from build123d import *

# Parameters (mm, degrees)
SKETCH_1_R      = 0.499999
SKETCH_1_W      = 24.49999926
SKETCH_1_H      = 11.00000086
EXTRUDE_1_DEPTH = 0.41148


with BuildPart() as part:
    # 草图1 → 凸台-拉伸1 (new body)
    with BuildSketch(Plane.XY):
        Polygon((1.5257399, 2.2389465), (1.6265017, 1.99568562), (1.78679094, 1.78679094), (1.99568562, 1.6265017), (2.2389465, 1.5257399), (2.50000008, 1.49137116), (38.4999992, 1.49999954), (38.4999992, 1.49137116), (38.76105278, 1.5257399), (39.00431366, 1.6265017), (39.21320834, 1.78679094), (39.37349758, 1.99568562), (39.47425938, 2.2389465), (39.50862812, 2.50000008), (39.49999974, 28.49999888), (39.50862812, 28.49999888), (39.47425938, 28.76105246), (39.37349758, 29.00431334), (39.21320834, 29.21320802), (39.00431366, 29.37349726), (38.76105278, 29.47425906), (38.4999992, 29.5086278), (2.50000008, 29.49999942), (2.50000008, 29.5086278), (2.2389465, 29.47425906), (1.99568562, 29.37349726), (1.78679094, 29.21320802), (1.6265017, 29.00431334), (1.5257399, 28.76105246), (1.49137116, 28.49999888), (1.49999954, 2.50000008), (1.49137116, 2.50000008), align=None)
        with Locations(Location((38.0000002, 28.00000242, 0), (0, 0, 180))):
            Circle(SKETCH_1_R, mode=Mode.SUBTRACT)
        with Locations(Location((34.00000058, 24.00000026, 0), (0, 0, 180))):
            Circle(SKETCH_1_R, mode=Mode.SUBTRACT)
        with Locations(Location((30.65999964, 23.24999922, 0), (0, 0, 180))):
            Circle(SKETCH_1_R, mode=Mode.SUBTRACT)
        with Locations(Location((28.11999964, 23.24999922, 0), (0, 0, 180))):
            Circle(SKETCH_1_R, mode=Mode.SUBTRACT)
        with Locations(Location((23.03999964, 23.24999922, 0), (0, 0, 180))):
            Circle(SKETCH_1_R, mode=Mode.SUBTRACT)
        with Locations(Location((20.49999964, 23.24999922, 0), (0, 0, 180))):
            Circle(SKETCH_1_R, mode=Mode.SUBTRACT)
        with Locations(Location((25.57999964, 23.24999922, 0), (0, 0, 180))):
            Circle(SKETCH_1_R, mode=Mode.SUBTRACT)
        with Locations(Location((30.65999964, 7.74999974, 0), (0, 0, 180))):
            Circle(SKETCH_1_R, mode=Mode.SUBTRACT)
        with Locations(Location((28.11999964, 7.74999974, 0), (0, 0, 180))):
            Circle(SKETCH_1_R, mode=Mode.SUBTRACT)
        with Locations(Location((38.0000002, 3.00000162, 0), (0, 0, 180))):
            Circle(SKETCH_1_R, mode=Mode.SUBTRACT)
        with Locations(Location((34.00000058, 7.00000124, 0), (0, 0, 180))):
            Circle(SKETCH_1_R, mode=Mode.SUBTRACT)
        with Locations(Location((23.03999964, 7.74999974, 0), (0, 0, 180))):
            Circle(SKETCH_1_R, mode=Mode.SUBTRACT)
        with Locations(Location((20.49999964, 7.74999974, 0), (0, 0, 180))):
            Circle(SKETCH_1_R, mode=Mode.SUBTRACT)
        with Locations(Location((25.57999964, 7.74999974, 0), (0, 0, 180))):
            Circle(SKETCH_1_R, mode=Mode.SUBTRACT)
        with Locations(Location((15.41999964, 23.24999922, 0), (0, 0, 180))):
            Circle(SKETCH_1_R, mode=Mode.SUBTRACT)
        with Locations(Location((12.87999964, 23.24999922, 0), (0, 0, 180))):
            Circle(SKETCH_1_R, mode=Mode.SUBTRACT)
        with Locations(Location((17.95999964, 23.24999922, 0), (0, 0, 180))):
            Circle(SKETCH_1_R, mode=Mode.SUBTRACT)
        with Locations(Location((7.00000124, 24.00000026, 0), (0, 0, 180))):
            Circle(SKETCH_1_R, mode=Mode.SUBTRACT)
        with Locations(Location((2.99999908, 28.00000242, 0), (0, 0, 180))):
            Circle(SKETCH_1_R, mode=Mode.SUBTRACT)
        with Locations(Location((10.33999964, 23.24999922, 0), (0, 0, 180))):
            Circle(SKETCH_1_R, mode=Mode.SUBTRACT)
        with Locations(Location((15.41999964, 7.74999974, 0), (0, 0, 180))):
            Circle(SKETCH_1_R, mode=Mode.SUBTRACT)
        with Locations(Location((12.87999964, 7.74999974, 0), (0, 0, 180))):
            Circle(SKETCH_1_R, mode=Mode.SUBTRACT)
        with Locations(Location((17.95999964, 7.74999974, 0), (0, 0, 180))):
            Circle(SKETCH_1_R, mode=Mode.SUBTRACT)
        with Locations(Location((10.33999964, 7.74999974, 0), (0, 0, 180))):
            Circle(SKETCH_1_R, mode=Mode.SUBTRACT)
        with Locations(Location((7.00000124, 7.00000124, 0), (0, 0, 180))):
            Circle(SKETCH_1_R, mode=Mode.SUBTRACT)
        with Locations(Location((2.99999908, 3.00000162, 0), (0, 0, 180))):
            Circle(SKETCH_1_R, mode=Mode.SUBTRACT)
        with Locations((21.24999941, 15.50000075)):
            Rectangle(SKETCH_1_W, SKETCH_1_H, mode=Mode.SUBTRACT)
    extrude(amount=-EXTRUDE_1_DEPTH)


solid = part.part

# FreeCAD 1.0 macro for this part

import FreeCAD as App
import Part
import Sketcher

V = App.Vector
Q = App.Units.Quantity

doc = App.newDocument("Part")
body = doc.addObject("PartDesign::Body", "Body")

# Sketch on XY plane
sketch1 = body.newObject("Sketcher::SketchObject", "Sketch")
sketch1.AttachmentSupport = (doc.getObject("XY_Plane"), [""])
sketch1.MapMode = "FlatFace"
sketch1.addGeometry(Part.LineSegment(V(1.52574, 2.238946, 0), V(1.626502, 1.995686, 0)), False)
sketch1.addGeometry(Part.LineSegment(V(1.626502, 1.995686, 0), V(1.786791, 1.786791, 0)), False)
sketch1.addGeometry(Part.LineSegment(V(1.786791, 1.786791, 0), V(1.995686, 1.626502, 0)), False)
sketch1.addGeometry(Part.LineSegment(V(1.995686, 1.626502, 0), V(2.238946, 1.52574, 0)), False)
sketch1.addGeometry(Part.LineSegment(V(2.238946, 1.52574, 0), V(2.5, 1.491371, 0)), False)
sketch1.addGeometry(Part.LineSegment(V(2.5, 1.491371, 0), V(38.499999, 1.5, 0)), False)
sketch1.addGeometry(Part.LineSegment(V(38.499999, 1.5, 0), V(38.499999, 1.491371, 0)), False)
sketch1.addGeometry(Part.LineSegment(V(38.499999, 1.491371, 0), V(38.761053, 1.52574, 0)), False)
sketch1.addGeometry(Part.LineSegment(V(38.761053, 1.52574, 0), V(39.004314, 1.626502, 0)), False)
sketch1.addGeometry(Part.LineSegment(V(39.004314, 1.626502, 0), V(39.213208, 1.786791, 0)), False)
sketch1.addGeometry(Part.LineSegment(V(39.213208, 1.786791, 0), V(39.373498, 1.995686, 0)), False)
sketch1.addGeometry(Part.LineSegment(V(39.373498, 1.995686, 0), V(39.474259, 2.238946, 0)), False)
sketch1.addGeometry(Part.LineSegment(V(39.474259, 2.238946, 0), V(39.508628, 2.5, 0)), False)
sketch1.addGeometry(Part.LineSegment(V(39.508628, 2.5, 0), V(39.5, 28.499999, 0)), False)
sketch1.addGeometry(Part.LineSegment(V(39.5, 28.499999, 0), V(39.508628, 28.499999, 0)), False)
sketch1.addGeometry(Part.LineSegment(V(39.508628, 28.499999, 0), V(39.474259, 28.761052, 0)), False)
sketch1.addGeometry(Part.LineSegment(V(39.474259, 28.761052, 0), V(39.373498, 29.004313, 0)), False)
sketch1.addGeometry(Part.LineSegment(V(39.373498, 29.004313, 0), V(39.213208, 29.213208, 0)), False)
sketch1.addGeometry(Part.LineSegment(V(39.213208, 29.213208, 0), V(39.004314, 29.373497, 0)), False)
sketch1.addGeometry(Part.LineSegment(V(39.004314, 29.373497, 0), V(38.761053, 29.474259, 0)), False)
sketch1.addGeometry(Part.LineSegment(V(38.761053, 29.474259, 0), V(38.499999, 29.508628, 0)), False)
sketch1.addGeometry(Part.LineSegment(V(38.499999, 29.508628, 0), V(2.5, 29.499999, 0)), False)
sketch1.addGeometry(Part.LineSegment(V(2.5, 29.499999, 0), V(2.5, 29.508628, 0)), False)
sketch1.addGeometry(Part.LineSegment(V(2.5, 29.508628, 0), V(2.238946, 29.474259, 0)), False)
sketch1.addGeometry(Part.LineSegment(V(2.238946, 29.474259, 0), V(1.995686, 29.373497, 0)), False)
sketch1.addGeometry(Part.LineSegment(V(1.995686, 29.373497, 0), V(1.786791, 29.213208, 0)), False)
sketch1.addGeometry(Part.LineSegment(V(1.786791, 29.213208, 0), V(1.626502, 29.004313, 0)), False)
sketch1.addGeometry(Part.LineSegment(V(1.626502, 29.004313, 0), V(1.52574, 28.761052, 0)), False)
sketch1.addGeometry(Part.LineSegment(V(1.52574, 28.761052, 0), V(1.491371, 28.499999, 0)), False)
sketch1.addGeometry(Part.LineSegment(V(1.491371, 28.499999, 0), V(1.5, 2.5, 0)), False)
sketch1.addGeometry(Part.LineSegment(V(1.5, 2.5, 0), V(1.491371, 2.5, 0)), False)
sketch1.addGeometry(Part.LineSegment(V(1.491371, 2.5, 0), V(1.52574, 2.238946, 0)), False)
sketch1.addGeometry(Part.Circle(V(2.999999, 3.000002, 0), V(0, 0, 1), 0.499999), False)
sketch1.addGeometry(Part.Circle(V(7.000001, 7.000001, 0), V(0, 0, 1), 0.499999), False)
sketch1.addGeometry(Part.Circle(V(10.34, 7.75, 0), V(0, 0, 1), 0.499999), False)
sketch1.addGeometry(Part.Circle(V(12.88, 7.75, 0), V(0, 0, 1), 0.499999), False)
sketch1.addGeometry(Part.Circle(V(15.42, 7.75, 0), V(0, 0, 1), 0.499999), False)
sketch1.addGeometry(Part.Circle(V(17.96, 7.75, 0), V(0, 0, 1), 0.499999), False)
sketch1.addGeometry(Part.Circle(V(20.5, 7.75, 0), V(0, 0, 1), 0.499999), False)
sketch1.addGeometry(Part.Circle(V(23.04, 7.75, 0), V(0, 0, 1), 0.499999), False)
sketch1.addGeometry(Part.Circle(V(25.58, 7.75, 0), V(0, 0, 1), 0.499999), False)
sketch1.addGeometry(Part.Circle(V(28.12, 7.75, 0), V(0, 0, 1), 0.499999), False)
sketch1.addGeometry(Part.Circle(V(38, 3.000002, 0), V(0, 0, 1), 0.499999), False)
sketch1.addGeometry(Part.Circle(V(30.66, 7.75, 0), V(0, 0, 1), 0.499999), False)
sketch1.addGeometry(Part.Circle(V(34.000001, 7.000001, 0), V(0, 0, 1), 0.499999), False)
sketch1.addGeometry(Part.LineSegment(V(33.499999, 10, 0), V(9, 10, 0)), False)
sketch1.addGeometry(Part.LineSegment(V(9, 10, 0), V(9, 21.000001, 0)), False)
sketch1.addGeometry(Part.LineSegment(V(9, 21.000001, 0), V(33.499999, 21.000001, 0)), False)
sketch1.addGeometry(Part.LineSegment(V(33.499999, 21.000001, 0), V(33.499999, 10, 0)), False)
sketch1.addGeometry(Part.Circle(V(10.34, 23.249999, 0), V(0, 0, 1), 0.499999), False)
sketch1.addGeometry(Part.Circle(V(7.000001, 24, 0), V(0, 0, 1), 0.499999), False)
sketch1.addGeometry(Part.Circle(V(2.999999, 28.000002, 0), V(0, 0, 1), 0.499999), False)
sketch1.addGeometry(Part.Circle(V(12.88, 23.249999, 0), V(0, 0, 1), 0.499999), False)
sketch1.addGeometry(Part.Circle(V(15.42, 23.249999, 0), V(0, 0, 1), 0.499999), False)
sketch1.addGeometry(Part.Circle(V(17.96, 23.249999, 0), V(0, 0, 1), 0.499999), False)
sketch1.addGeometry(Part.Circle(V(20.5, 23.249999, 0), V(0, 0, 1), 0.499999), False)
sketch1.addGeometry(Part.Circle(V(23.04, 23.249999, 0), V(0, 0, 1), 0.499999), False)
sketch1.addGeometry(Part.Circle(V(25.58, 23.249999, 0), V(0, 0, 1), 0.499999), False)
sketch1.addGeometry(Part.Circle(V(28.12, 23.249999, 0), V(0, 0, 1), 0.499999), False)
sketch1.addGeometry(Part.Circle(V(30.66, 23.249999, 0), V(0, 0, 1), 0.499999), False)
sketch1.addGeometry(Part.Circle(V(34.000001, 24, 0), V(0, 0, 1), 0.499999), False)
sketch1.addGeometry(Part.Circle(V(38, 28.000002, 0), V(0, 0, 1), 0.499999), False)
sketch1.addConstraint(Sketcher.Constraint("Coincident", 0, 2, 1, 1))
sketch1.addConstraint(Sketcher.Constraint("Coincident", 1, 2, 2, 1))
sketch1.addConstraint(Sketcher.Constraint("Coincident", 2, 2, 3, 1))
sketch1.addConstraint(Sketcher.Constraint("Coincident", 3, 2, 4, 1))
sketch1.addConstraint(Sketcher.Constraint("Coincident", 4, 2, 5, 1))
sketch1.addConstraint(Sketcher.Constraint("Coincident", 5, 2, 6, 1))
sketch1.addConstraint(Sketcher.Constraint("Coincident", 6, 2, 7, 1))
sketch1.addConstraint(Sketcher.Constraint("Coincident", 7, 2, 8, 1))
sketch1.addConstraint(Sketcher.Constraint("Coincident", 8, 2, 9, 1))
sketch1.addConstraint(Sketcher.Constraint("Coincident", 9, 2, 10, 1))
sketch1.addConstraint(Sketcher.Constraint("Coincident", 10, 2, 11, 1))
sketch1.addConstraint(Sketcher.Constraint("Coincident", 11, 2, 12, 1))
sketch1.addConstraint(Sketcher.Constraint("Coincident", 12, 2, 13, 1))
sketch1.addConstraint(Sketcher.Constraint("Coincident", 13, 2, 14, 1))
sketch1.addConstraint(Sketcher.Constraint("Coincident", 14, 2, 15, 1))
sketch1.addConstraint(Sketcher.Constraint("Coincident", 15, 2, 16, 1))
sketch1.addConstraint(Sketcher.Constraint("Coincident", 16, 2, 17, 1))
sketch1.addConstraint(Sketcher.Constraint("Coincident", 17, 2, 18, 1))
sketch1.addConstraint(Sketcher.Constraint("Coincident", 18, 2, 19, 1))
sketch1.addConstraint(Sketcher.Constraint("Coincident", 19, 2, 20, 1))
sketch1.addConstraint(Sketcher.Constraint("Coincident", 20, 2, 21, 1))
sketch1.addConstraint(Sketcher.Constraint("Coincident", 21, 2, 22, 1))
sketch1.addConstraint(Sketcher.Constraint("Coincident", 22, 2, 23, 1))
sketch1.addConstraint(Sketcher.Constraint("Coincident", 23, 2, 24, 1))
sketch1.addConstraint(Sketcher.Constraint("Coincident", 24, 2, 25, 1))
sketch1.addConstraint(Sketcher.Constraint("Coincident", 25, 2, 26, 1))
sketch1.addConstraint(Sketcher.Constraint("Coincident", 26, 2, 27, 1))
sketch1.addConstraint(Sketcher.Constraint("Coincident", 27, 2, 28, 1))
sketch1.addConstraint(Sketcher.Constraint("Coincident", 28, 2, 29, 1))
sketch1.addConstraint(Sketcher.Constraint("Coincident", 29, 2, 30, 1))
sketch1.addConstraint(Sketcher.Constraint("Coincident", 30, 2, 31, 1))
sketch1.addConstraint(Sketcher.Constraint("Coincident", 31, 2, 0, 1))
sketch1.addConstraint(Sketcher.Constraint("Coincident", 45, 2, 46, 1))
sketch1.addConstraint(Sketcher.Constraint("Coincident", 46, 2, 47, 1))
sketch1.addConstraint(Sketcher.Constraint("Coincident", 47, 2, 48, 1))
sketch1.addConstraint(Sketcher.Constraint("Coincident", 48, 2, 45, 1))
sketch1.addConstraint(Sketcher.Constraint("Vertical", 6))
sketch1.addConstraint(Sketcher.Constraint("Horizontal", 14))
sketch1.addConstraint(Sketcher.Constraint("Vertical", 22))
sketch1.addConstraint(Sketcher.Constraint("Horizontal", 30))
sketch1.addConstraint(Sketcher.Constraint("Horizontal", 45))
sketch1.addConstraint(Sketcher.Constraint("Vertical", 46))
sketch1.addConstraint(Sketcher.Constraint("Horizontal", 47))
sketch1.addConstraint(Sketcher.Constraint("Vertical", 48))
sketch1.addConstraint(Sketcher.Constraint("Equal", 32, 33))
sketch1.addConstraint(Sketcher.Constraint("Equal", 33, 34))
sketch1.addConstraint(Sketcher.Constraint("Equal", 34, 35))
sketch1.addConstraint(Sketcher.Constraint("Equal", 35, 36))
sketch1.addConstraint(Sketcher.Constraint("Equal", 36, 37))
sketch1.addConstraint(Sketcher.Constraint("Equal", 37, 38))
sketch1.addConstraint(Sketcher.Constraint("Equal", 38, 39))
sketch1.addConstraint(Sketcher.Constraint("Equal", 39, 40))
sketch1.addConstraint(Sketcher.Constraint("Equal", 40, 41))
sketch1.addConstraint(Sketcher.Constraint("Equal", 41, 42))
sketch1.addConstraint(Sketcher.Constraint("Equal", 42, 43))
sketch1.addConstraint(Sketcher.Constraint("Equal", 43, 44))
sketch1.addConstraint(Sketcher.Constraint("Equal", 44, 49))
sketch1.addConstraint(Sketcher.Constraint("Equal", 49, 50))
sketch1.addConstraint(Sketcher.Constraint("Equal", 50, 51))
sketch1.addConstraint(Sketcher.Constraint("Equal", 51, 52))
sketch1.addConstraint(Sketcher.Constraint("Equal", 52, 53))
sketch1.addConstraint(Sketcher.Constraint("Equal", 53, 54))
sketch1.addConstraint(Sketcher.Constraint("Equal", 54, 55))
sketch1.addConstraint(Sketcher.Constraint("Equal", 55, 56))
sketch1.addConstraint(Sketcher.Constraint("Equal", 56, 57))
sketch1.addConstraint(Sketcher.Constraint("Equal", 57, 58))
sketch1.addConstraint(Sketcher.Constraint("Equal", 58, 59))
sketch1.addConstraint(Sketcher.Constraint("Equal", 59, 60))
sketch1.addConstraint(Sketcher.Constraint("Equal", 60, 61))
sketch1.addConstraint(Sketcher.Constraint("Perpendicular", 0, 8))
sketch1.addConstraint(Sketcher.Constraint("Perpendicular", 1, 9))
sketch1.addConstraint(Sketcher.Constraint("Perpendicular", 2, 10))
sketch1.addConstraint(Sketcher.Constraint("Perpendicular", 3, 11))
sketch1.addConstraint(Sketcher.Constraint("Perpendicular", 4, 12))
sketch1.addConstraint(Sketcher.Constraint("Perpendicular", 7, 15))
sketch1.addConstraint(Sketcher.Constraint("Perpendicular", 8, 16))
sketch1.addConstraint(Sketcher.Constraint("Perpendicular", 9, 17))
sketch1.addConstraint(Sketcher.Constraint("Perpendicular", 10, 18))
sketch1.addConstraint(Sketcher.Constraint("Perpendicular", 11, 19))
sketch1.addConstraint(Sketcher.Constraint("Perpendicular", 12, 20))
sketch1.addConstraint(Sketcher.Constraint("Parallel", 5, 21))
sketch1.addConstraint(Sketcher.Constraint("Perpendicular", 15, 23))
sketch1.addConstraint(Sketcher.Constraint("Perpendicular", 16, 24))
sketch1.addConstraint(Sketcher.Constraint("Perpendicular", 17, 25))
sketch1.addConstraint(Sketcher.Constraint("Perpendicular", 18, 26))
sketch1.addConstraint(Sketcher.Constraint("Perpendicular", 19, 27))
sketch1.addConstraint(Sketcher.Constraint("Perpendicular", 20, 28))
sketch1.addConstraint(Sketcher.Constraint("Parallel", 13, 29))
sketch1.addConstraint(Sketcher.Constraint("Perpendicular", 23, 31))
sketch1.addConstraint(Sketcher.Constraint("Horizontal", 34, 3, 35, 3))
sketch1.addConstraint(Sketcher.Constraint("Horizontal", 35, 3, 36, 3))
sketch1.addConstraint(Sketcher.Constraint("Horizontal", 36, 3, 37, 3))
sketch1.addConstraint(Sketcher.Constraint("Horizontal", 37, 3, 38, 3))
sketch1.addConstraint(Sketcher.Constraint("Horizontal", 38, 3, 39, 3))
sketch1.addConstraint(Sketcher.Constraint("Horizontal", 39, 3, 40, 3))
sketch1.addConstraint(Sketcher.Constraint("Horizontal", 40, 3, 41, 3))
sketch1.addConstraint(Sketcher.Constraint("Horizontal", 32, 3, 42, 3))
sketch1.addConstraint(Sketcher.Constraint("Horizontal", 41, 3, 43, 3))
sketch1.addConstraint(Sketcher.Constraint("Horizontal", 33, 3, 44, 3))
sketch1.addConstraint(Sketcher.Constraint("Horizontal", 49, 3, 52, 3))
sketch1.addConstraint(Sketcher.Constraint("Horizontal", 52, 3, 53, 3))
sketch1.addConstraint(Sketcher.Constraint("Horizontal", 53, 3, 54, 3))
sketch1.addConstraint(Sketcher.Constraint("Horizontal", 54, 3, 55, 3))
sketch1.addConstraint(Sketcher.Constraint("Horizontal", 55, 3, 56, 3))
sketch1.addConstraint(Sketcher.Constraint("Horizontal", 56, 3, 57, 3))
sketch1.addConstraint(Sketcher.Constraint("Horizontal", 57, 3, 58, 3))
sketch1.addConstraint(Sketcher.Constraint("Horizontal", 58, 3, 59, 3))
sketch1.addConstraint(Sketcher.Constraint("Horizontal", 50, 3, 60, 3))
sketch1.addConstraint(Sketcher.Constraint("Horizontal", 51, 3, 61, 3))
sketch1.addConstraint(Sketcher.Constraint("Horizontal", 4, 2, 6, 2))
sketch1.addConstraint(Sketcher.Constraint("Horizontal", 3, 2, 7, 2))
sketch1.addConstraint(Sketcher.Constraint("Horizontal", 2, 2, 8, 2))
sketch1.addConstraint(Sketcher.Constraint("Horizontal", 1, 2, 9, 2))
sketch1.addConstraint(Sketcher.Constraint("Horizontal", 0, 2, 10, 2))
sketch1.addConstraint(Sketcher.Constraint("Horizontal", 20, 2, 22, 2))
sketch1.addConstraint(Sketcher.Constraint("Horizontal", 19, 2, 23, 2))
sketch1.addConstraint(Sketcher.Constraint("Horizontal", 18, 2, 24, 2))
sketch1.addConstraint(Sketcher.Constraint("Horizontal", 17, 2, 25, 2))
sketch1.addConstraint(Sketcher.Constraint("Horizontal", 16, 2, 26, 2))
sketch1.addConstraint(Sketcher.Constraint("Horizontal", 15, 2, 27, 2))
sketch1.addConstraint(Sketcher.Constraint("Horizontal", 14, 2, 28, 2))
sketch1.addConstraint(Sketcher.Constraint("Horizontal", 12, 2, 29, 2))
sketch1.addConstraint(Sketcher.Constraint("Horizontal", 11, 2, 31, 2))
sketch1.addConstraint(Sketcher.Constraint("Vertical", 34, 3, 49, 3))
sketch1.addConstraint(Sketcher.Constraint("Vertical", 33, 3, 50, 3))
sketch1.addConstraint(Sketcher.Constraint("Vertical", 32, 3, 51, 3))
sketch1.addConstraint(Sketcher.Constraint("Vertical", 35, 3, 52, 3))
sketch1.addConstraint(Sketcher.Constraint("Vertical", 36, 3, 53, 3))
sketch1.addConstraint(Sketcher.Constraint("Vertical", 37, 3, 54, 3))
sketch1.addConstraint(Sketcher.Constraint("Vertical", 38, 3, 55, 3))
sketch1.addConstraint(Sketcher.Constraint("Vertical", 39, 3, 56, 3))
sketch1.addConstraint(Sketcher.Constraint("Vertical", 40, 3, 57, 3))
sketch1.addConstraint(Sketcher.Constraint("Vertical", 41, 3, 58, 3))
sketch1.addConstraint(Sketcher.Constraint("Vertical", 43, 3, 59, 3))
sketch1.addConstraint(Sketcher.Constraint("Vertical", 44, 3, 60, 3))
sketch1.addConstraint(Sketcher.Constraint("Vertical", 42, 3, 61, 3))
sketch1.addConstraint(Sketcher.Constraint("Vertical", 12, 2, 14, 2))
sketch1.addConstraint(Sketcher.Constraint("Vertical", 11, 2, 15, 2))
sketch1.addConstraint(Sketcher.Constraint("Vertical", 10, 2, 16, 2))
sketch1.addConstraint(Sketcher.Constraint("Vertical", 9, 2, 17, 2))
sketch1.addConstraint(Sketcher.Constraint("Vertical", 8, 2, 18, 2))
sketch1.addConstraint(Sketcher.Constraint("Vertical", 7, 2, 19, 2))
sketch1.addConstraint(Sketcher.Constraint("Vertical", 6, 2, 20, 2))
sketch1.addConstraint(Sketcher.Constraint("Vertical", 4, 2, 21, 2))
sketch1.addConstraint(Sketcher.Constraint("Vertical", 3, 2, 23, 2))
sketch1.addConstraint(Sketcher.Constraint("Vertical", 2, 2, 24, 2))
sketch1.addConstraint(Sketcher.Constraint("Vertical", 1, 2, 25, 2))
sketch1.addConstraint(Sketcher.Constraint("Equal", 30, 6))
sketch1.addConstraint(Sketcher.Constraint("Equal", 0, 1))
sketch1.addConstraint(Sketcher.Constraint("Equal", 1, 2))
sketch1.addConstraint(Sketcher.Constraint("Equal", 2, 3))
sketch1.addConstraint(Sketcher.Constraint("Equal", 2, 4))
sketch1.addConstraint(Sketcher.Constraint("Equal", 10, 12))
sketch1.addConstraint(Sketcher.Constraint("Diameter", 32, Q("0.999998 mm")))
sketch1.addConstraint(Sketcher.Constraint("DistanceY", 46, 1, 46, 2, Q("11.000001 mm")))
sketch1.addConstraint(Sketcher.Constraint("Distance", 5, Q("36 mm")))
sketch1.addConstraint(Sketcher.Constraint("Distance", 13, Q("26 mm")))
sketch1.addConstraint(Sketcher.Constraint("DistanceX", 45, 2, 45, 1, Q("24.499999 mm")))
sketch1.addConstraint(Sketcher.Constraint("DistanceX", -1, 1, 32, 3, Q("2.999999 mm")))
sketch1.addConstraint(Sketcher.Constraint("DistanceY", -1, 1, 32, 3, Q("3.000002 mm")))
sketch1.addConstraint(Sketcher.Constraint("DistanceX", -1, 1, 33, 3, Q("7.000001 mm")))
sketch1.addConstraint(Sketcher.Constraint("DistanceY", -1, 1, 33, 3, Q("7.000001 mm")))
sketch1.addConstraint(Sketcher.Constraint("DistanceX", -1, 1, 42, 3, Q("38 mm")))
sketch1.addConstraint(Sketcher.Constraint("DistanceX", -1, 1, 44, 3, Q("34.000001 mm")))
sketch1.addConstraint(Sketcher.Constraint("DistanceY", -1, 1, 50, 3, Q("24 mm")))
sketch1.addConstraint(Sketcher.Constraint("DistanceX", -1, 1, 45, 2, Q("9 mm")))
sketch1.addConstraint(Sketcher.Constraint("DistanceY", -1, 1, 45, 2, Q("10 mm")))
sketch1.addConstraint(Sketcher.Constraint("DistanceX", -1, 1, 38, 3, Q("20.5 mm")))
sketch1.addConstraint(Sketcher.Constraint("DistanceX", -1, 1, 4, 2, Q("2.5 mm")))
sketch1.addConstraint(Sketcher.Constraint("DistanceY", -1, 1, 5, 2, Q("1.5 mm")))
sketch1.addConstraint(Sketcher.Constraint("DistanceY", -1, 1, 12, 2, Q("2.5 mm")))
sketch1.addConstraint(Sketcher.Constraint("DistanceX", -1, 1, 34, 3, Q("10.34 mm")))
sketch1.addConstraint(Sketcher.Constraint("DistanceY", -1, 1, 34, 3, Q("7.75 mm")))
sketch1.addConstraint(Sketcher.Constraint("DistanceX", -1, 1, 35, 3, Q("12.88 mm")))
sketch1.addConstraint(Sketcher.Constraint("DistanceX", -1, 1, 36, 3, Q("15.42 mm")))
sketch1.addConstraint(Sketcher.Constraint("DistanceX", -1, 1, 37, 3, Q("17.96 mm")))
sketch1.addConstraint(Sketcher.Constraint("DistanceX", -1, 1, 39, 3, Q("23.04 mm")))
sketch1.addConstraint(Sketcher.Constraint("DistanceX", -1, 1, 40, 3, Q("25.58 mm")))
sketch1.addConstraint(Sketcher.Constraint("DistanceX", -1, 1, 41, 3, Q("28.12 mm")))
sketch1.addConstraint(Sketcher.Constraint("DistanceX", -1, 1, 43, 3, Q("30.66 mm")))
sketch1.addConstraint(Sketcher.Constraint("DistanceY", -1, 1, 49, 3, Q("23.249999 mm")))
sketch1.addConstraint(Sketcher.Constraint("DistanceX", 14, 1, 14, 2, Q("0.008628 mm")))
sketch1.addConstraint(Sketcher.Constraint("DistanceX", -1, 1, 0, 2, Q("1.626502 mm")))
sketch1.addConstraint(Sketcher.Constraint("DistanceX", -1, 1, 1, 2, Q("1.786791 mm")))
sketch1.addConstraint(Sketcher.Constraint("DistanceY", -1, 1, 3, 2, Q("1.52574 mm")))
sketch1.addConstraint(Sketcher.Constraint("DistanceY", -1, 1, 51, 3, Q("28.000002 mm")))
pad1 = body.newObject("PartDesign::Pad", "Pad")
pad1.Profile = sketch1
pad1.Length = 0.41148
pad1.Reversed = True

doc.recompute()
